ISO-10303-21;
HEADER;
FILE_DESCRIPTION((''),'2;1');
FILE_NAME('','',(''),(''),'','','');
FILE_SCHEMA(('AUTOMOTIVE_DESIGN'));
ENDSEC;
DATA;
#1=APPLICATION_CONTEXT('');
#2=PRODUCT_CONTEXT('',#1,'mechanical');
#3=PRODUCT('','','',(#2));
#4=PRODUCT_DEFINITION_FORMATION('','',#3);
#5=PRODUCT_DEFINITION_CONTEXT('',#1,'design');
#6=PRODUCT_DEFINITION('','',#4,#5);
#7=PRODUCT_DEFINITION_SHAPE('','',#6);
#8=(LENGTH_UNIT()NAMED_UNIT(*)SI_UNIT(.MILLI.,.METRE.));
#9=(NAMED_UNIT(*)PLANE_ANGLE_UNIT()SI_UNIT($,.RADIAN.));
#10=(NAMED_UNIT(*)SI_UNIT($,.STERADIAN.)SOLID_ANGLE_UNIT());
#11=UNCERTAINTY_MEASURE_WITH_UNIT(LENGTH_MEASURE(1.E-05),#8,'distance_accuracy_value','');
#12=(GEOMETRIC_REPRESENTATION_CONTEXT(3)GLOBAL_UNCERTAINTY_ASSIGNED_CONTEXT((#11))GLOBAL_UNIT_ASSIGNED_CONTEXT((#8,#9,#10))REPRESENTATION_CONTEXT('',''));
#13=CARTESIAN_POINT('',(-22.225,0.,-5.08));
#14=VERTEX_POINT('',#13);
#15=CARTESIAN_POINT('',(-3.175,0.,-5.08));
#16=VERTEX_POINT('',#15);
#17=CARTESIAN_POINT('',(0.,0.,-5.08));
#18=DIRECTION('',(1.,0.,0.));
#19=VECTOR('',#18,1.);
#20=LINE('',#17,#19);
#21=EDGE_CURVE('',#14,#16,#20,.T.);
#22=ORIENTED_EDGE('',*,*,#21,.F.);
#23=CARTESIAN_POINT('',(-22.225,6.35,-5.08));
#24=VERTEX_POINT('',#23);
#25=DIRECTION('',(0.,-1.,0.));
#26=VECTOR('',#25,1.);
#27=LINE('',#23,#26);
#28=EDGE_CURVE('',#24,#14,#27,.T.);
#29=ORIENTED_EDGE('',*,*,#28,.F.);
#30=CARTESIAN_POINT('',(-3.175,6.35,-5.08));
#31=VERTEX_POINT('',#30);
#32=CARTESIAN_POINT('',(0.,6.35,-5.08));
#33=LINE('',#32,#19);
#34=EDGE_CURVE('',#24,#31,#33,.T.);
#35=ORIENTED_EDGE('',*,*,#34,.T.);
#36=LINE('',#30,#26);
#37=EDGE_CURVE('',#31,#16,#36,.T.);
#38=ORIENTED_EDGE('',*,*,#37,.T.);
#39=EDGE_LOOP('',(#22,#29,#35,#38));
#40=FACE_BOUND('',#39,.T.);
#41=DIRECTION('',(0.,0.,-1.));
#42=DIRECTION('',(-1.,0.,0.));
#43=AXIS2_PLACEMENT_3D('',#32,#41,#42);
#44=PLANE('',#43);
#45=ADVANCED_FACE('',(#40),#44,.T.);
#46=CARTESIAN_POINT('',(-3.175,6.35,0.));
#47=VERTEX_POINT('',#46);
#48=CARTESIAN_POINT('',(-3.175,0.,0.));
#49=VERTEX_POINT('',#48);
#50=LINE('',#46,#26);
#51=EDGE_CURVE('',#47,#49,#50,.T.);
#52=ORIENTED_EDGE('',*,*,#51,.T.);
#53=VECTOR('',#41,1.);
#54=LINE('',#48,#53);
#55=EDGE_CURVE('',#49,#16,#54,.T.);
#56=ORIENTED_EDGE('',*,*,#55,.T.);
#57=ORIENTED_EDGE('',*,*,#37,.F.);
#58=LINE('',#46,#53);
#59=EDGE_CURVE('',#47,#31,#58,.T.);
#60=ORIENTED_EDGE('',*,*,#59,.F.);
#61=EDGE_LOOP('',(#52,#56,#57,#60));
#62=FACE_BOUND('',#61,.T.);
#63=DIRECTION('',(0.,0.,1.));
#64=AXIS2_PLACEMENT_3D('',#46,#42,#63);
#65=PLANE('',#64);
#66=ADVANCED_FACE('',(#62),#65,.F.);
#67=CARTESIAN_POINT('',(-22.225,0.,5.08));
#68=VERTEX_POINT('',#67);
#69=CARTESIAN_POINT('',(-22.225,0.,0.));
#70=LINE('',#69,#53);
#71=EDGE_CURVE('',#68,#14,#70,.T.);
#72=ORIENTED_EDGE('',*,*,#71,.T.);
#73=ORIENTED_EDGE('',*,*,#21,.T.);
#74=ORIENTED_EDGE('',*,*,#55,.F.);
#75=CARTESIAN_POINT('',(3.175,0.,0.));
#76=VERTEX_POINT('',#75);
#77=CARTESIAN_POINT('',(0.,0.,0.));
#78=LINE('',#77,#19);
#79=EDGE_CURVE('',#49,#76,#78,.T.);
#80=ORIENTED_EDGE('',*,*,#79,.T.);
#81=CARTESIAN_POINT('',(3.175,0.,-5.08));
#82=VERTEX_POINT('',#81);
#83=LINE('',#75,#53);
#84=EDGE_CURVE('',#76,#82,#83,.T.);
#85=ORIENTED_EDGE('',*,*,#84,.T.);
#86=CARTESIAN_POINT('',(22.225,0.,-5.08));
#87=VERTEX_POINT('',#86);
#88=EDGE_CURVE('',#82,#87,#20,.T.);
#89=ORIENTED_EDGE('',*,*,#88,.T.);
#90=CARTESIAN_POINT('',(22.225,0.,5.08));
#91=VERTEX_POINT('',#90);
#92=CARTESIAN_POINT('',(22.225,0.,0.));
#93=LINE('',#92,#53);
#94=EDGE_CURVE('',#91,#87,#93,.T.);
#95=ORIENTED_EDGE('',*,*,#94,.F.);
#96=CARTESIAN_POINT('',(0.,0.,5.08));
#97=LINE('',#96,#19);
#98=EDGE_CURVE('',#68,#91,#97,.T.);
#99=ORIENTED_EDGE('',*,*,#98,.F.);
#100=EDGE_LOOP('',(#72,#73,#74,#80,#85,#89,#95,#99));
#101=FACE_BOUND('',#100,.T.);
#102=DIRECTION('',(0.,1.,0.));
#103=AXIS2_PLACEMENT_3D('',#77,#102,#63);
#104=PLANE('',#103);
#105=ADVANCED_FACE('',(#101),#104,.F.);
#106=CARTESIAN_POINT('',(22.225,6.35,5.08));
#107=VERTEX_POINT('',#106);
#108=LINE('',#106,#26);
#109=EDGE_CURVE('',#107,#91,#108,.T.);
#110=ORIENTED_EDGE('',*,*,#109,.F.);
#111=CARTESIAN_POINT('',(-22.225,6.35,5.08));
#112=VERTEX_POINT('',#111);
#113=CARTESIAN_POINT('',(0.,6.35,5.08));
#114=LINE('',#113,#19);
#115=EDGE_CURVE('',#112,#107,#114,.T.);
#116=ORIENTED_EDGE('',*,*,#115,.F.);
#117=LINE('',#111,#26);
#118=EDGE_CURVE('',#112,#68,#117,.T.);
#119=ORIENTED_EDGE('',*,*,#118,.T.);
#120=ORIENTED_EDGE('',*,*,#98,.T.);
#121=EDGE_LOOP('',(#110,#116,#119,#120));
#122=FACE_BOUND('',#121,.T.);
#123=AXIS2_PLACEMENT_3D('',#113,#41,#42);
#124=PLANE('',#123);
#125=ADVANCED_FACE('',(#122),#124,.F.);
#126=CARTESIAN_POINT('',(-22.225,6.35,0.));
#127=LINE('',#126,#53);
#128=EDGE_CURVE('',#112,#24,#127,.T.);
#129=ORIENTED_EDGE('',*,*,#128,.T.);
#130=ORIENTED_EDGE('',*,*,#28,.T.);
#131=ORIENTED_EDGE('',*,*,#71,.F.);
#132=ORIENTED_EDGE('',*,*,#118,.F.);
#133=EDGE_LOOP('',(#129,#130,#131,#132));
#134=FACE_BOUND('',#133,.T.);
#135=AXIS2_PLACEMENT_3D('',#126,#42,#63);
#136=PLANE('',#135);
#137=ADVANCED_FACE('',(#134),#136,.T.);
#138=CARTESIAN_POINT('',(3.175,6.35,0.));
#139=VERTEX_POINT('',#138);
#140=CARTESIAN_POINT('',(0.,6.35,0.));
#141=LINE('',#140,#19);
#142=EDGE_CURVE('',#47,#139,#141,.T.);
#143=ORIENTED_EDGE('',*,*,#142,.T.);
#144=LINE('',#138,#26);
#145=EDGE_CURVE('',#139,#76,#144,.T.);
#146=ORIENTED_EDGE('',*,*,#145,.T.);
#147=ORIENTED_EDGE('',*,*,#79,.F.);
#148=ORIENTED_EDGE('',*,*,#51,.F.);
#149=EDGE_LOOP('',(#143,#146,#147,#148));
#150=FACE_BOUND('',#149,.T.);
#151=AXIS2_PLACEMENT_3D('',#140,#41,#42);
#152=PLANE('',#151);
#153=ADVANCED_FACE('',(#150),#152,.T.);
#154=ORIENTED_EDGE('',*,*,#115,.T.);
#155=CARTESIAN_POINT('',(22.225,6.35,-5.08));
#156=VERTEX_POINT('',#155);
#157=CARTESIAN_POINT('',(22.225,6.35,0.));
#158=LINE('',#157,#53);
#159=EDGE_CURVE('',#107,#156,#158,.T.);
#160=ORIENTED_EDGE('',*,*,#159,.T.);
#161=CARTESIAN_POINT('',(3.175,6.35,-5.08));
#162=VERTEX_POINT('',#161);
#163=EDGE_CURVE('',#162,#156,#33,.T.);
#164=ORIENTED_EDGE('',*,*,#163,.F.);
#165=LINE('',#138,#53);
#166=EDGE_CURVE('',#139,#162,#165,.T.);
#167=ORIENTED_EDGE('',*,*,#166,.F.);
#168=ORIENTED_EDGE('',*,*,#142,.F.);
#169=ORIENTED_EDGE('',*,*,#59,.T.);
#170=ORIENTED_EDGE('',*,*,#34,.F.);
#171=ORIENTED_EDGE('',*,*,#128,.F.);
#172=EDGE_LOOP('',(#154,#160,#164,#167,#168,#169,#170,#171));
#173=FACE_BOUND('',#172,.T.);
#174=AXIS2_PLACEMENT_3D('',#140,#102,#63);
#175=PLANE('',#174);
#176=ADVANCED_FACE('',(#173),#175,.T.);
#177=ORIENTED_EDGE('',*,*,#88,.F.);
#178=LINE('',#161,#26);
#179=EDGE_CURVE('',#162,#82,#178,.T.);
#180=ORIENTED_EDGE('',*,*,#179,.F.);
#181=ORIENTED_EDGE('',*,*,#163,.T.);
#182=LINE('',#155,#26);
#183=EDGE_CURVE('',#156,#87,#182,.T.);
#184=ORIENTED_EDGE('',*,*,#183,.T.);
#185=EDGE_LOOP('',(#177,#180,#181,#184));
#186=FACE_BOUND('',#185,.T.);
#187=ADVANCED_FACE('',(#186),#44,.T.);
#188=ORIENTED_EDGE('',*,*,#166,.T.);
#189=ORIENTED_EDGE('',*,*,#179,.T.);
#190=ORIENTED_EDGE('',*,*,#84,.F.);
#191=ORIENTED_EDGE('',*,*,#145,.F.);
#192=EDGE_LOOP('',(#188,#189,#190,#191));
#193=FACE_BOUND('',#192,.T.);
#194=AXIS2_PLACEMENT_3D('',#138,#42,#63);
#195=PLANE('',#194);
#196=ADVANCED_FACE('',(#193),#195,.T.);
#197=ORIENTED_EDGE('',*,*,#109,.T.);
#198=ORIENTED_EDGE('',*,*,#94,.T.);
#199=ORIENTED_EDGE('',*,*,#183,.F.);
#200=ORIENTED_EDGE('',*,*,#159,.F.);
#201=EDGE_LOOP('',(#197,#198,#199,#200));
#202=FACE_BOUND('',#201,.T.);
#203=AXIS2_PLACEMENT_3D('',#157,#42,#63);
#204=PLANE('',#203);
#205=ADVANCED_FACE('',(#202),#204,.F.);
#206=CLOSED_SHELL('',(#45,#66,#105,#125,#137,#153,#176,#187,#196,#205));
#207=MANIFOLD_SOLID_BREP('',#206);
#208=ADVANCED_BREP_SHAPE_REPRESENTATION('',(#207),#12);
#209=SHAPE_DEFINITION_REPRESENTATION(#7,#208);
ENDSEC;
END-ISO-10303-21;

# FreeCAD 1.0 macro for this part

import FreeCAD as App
import Part
import Sketcher
from FreeCAD import Vector
Q = App.Units.Quantity

doc = App.newDocument("Part")
body = doc.addObject("PartDesign::Body", "Body")

sketch1 = body.newObject("Sketcher::SketchObject", "Sketch")
sketch1.AttachmentSupport = (doc.getObject("XZ_Plane"), [""])
sketch1.MapMode = "FlatFace"
sketch1.addGeometry([
    Part.LineSegment(Vector(-22, 5, 0), Vector(22, 5, 0)),
    Part.LineSegment(Vector(22, 5, 0), Vector(22, -5, 0)),
    Part.LineSegment(Vector(22, -5, 0), Vector(3, -5, 0)),
    Part.LineSegment(Vector(3, -5, 0), Vector(3, 0, 0)),
    Part.LineSegment(Vector(3, 0, 0), Vector(-3, 0, 0)),
    Part.LineSegment(Vector(-3, 0, 0), Vector(-3, -5, 0)),
    Part.LineSegment(Vector(-3, -5, 0), Vector(-22, -5, 0)),
    Part.LineSegment(Vector(-22, -5, 0), Vector(-22, 5, 0)),
], False)
sketch1.addConstraint([
    Sketcher.Constraint("Coincident", 0, 2, 1, 1),
    Sketcher.Constraint("Coincident", 1, 2, 2, 1),
    Sketcher.Constraint("Coincident", 2, 2, 3, 1),
    Sketcher.Constraint("Coincident", 3, 2, 4, 1),
    Sketcher.Constraint("Coincident", 4, 2, 5, 1),
    Sketcher.Constraint("Coincident", 5, 2, 6, 1),
    Sketcher.Constraint("Coincident", 6, 2, 7, 1),
    Sketcher.Constraint("Coincident", 7, 2, 0, 1),
    Sketcher.Constraint("Horizontal", 0),
    Sketcher.Constraint("Vertical", 1),
    Sketcher.Constraint("Horizontal", 2),
    Sketcher.Constraint("Vertical", 3),
    Sketcher.Constraint("Horizontal", 4),
    Sketcher.Constraint("Vertical", 5),
    Sketcher.Constraint("Horizontal", 6),
    Sketcher.Constraint("Vertical", 7),
    Sketcher.Constraint("Symmetric", 3, 2, 4, 2, -1, 1),
    Sketcher.Constraint("Symmetric", 0, 2, 6, 2, -1, 1),
    Sketcher.Constraint("Horizontal", 2, 2, 5, 2),
    Sketcher.Constraint("DistanceY", 1, 2, 1, 1, Q("0.4 in")),
    Sketcher.Constraint("DistanceX", 4, 2, 0, 2, Q("1 in")),
    Sketcher.Constraint("DistanceX", 0, 1, 0, 2, Q("1.75 in")),
])
pad1 = body.newObject("PartDesign::Pad", "Pad")
pad1.Profile = sketch1
pad1.Length = Q("0.25 in")
pad1.Reversed = True

doc.recompute()
